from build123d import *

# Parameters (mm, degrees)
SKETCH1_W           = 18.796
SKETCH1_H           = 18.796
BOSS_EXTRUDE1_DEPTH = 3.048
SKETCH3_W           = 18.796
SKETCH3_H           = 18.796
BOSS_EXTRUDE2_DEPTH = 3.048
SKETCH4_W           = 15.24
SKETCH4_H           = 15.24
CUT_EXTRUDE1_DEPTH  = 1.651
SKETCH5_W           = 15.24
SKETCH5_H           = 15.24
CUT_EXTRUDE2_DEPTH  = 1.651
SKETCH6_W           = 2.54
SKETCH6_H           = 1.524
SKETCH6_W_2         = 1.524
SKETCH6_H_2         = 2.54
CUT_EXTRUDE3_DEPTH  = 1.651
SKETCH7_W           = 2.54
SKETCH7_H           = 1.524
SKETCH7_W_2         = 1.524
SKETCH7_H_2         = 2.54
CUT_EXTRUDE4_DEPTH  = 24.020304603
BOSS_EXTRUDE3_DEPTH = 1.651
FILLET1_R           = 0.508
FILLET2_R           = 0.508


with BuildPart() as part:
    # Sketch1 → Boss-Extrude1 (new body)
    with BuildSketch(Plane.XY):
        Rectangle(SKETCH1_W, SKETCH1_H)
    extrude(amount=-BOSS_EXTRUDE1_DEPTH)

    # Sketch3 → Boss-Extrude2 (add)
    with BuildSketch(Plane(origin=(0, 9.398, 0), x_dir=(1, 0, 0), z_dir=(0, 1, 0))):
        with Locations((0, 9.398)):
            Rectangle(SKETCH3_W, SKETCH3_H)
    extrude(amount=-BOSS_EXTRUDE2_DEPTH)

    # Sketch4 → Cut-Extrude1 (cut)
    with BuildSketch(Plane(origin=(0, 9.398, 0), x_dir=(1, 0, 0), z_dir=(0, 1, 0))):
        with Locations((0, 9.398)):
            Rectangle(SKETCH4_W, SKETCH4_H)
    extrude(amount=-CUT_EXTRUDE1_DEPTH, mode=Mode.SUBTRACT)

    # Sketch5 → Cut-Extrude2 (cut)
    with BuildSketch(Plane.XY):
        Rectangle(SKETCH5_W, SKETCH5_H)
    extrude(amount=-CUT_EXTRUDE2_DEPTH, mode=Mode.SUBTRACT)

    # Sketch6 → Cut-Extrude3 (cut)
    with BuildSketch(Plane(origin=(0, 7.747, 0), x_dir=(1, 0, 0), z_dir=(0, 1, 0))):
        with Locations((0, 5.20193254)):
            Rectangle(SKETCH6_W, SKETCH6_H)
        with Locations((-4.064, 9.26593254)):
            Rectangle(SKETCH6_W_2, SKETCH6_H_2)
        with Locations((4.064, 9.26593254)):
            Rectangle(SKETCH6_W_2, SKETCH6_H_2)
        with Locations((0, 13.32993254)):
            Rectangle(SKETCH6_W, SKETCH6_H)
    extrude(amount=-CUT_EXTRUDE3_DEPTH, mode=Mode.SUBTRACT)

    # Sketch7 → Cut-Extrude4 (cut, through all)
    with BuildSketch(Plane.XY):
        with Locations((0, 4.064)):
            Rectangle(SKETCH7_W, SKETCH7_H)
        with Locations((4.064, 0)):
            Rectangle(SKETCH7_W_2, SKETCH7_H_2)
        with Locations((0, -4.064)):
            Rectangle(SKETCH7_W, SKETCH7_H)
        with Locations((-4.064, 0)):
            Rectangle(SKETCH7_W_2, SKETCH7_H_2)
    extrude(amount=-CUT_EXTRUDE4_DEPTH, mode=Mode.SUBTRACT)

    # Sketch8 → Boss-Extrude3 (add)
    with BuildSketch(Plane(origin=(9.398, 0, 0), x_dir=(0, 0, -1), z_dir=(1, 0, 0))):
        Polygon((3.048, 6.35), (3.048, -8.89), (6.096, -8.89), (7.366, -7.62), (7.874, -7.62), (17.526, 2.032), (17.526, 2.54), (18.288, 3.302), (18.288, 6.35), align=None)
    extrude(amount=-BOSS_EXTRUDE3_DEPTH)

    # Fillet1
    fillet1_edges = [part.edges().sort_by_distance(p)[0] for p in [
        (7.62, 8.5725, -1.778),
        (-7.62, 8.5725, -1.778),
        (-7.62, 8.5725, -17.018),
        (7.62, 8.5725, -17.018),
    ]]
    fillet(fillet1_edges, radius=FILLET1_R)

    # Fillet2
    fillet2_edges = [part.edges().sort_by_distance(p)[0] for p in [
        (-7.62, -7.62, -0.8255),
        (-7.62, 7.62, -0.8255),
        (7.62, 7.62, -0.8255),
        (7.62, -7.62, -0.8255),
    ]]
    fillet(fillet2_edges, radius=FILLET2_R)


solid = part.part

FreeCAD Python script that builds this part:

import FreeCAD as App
import Part
import Sketcher
Q = App.Units.Quantity


def edges_at(feature, points):
    """Names of the edges that pass closest to the given points."""
    edges = feature.Shape.Edges
    near = lambda p: min(range(len(edges)), key=lambda i: edges[i].distToShape(Part.Vertex(*p))[0])
    return sorted({f"Edge{near(p) + 1}" for p in points})


def add_polygon(sketch, points):
    """Adds a closed chain of lines whose ends are joined by coincident constraints."""
    first, n = sketch.GeometryCount, len(points)
    for a, b in zip(points, points[1:] + points[:1]):
        sketch.addGeometry(Part.LineSegment(App.Vector(*a, 0), App.Vector(*b, 0)), False)
    for i in range(n):
        sketch.addConstraint(Sketcher.Constraint("Coincident", first + i, 2, first + (i + 1) % n, 1))

doc = App.newDocument("Part")
body = doc.addObject("PartDesign::Body", "Body")

# Sketch on XY plane
sketch1 = body.newObject("Sketcher::SketchObject", "Sketch")
sketch1.AttachmentSupport = (doc.getObject("XY_Plane"), [""])
sketch1.MapMode = "FlatFace"
add_polygon(sketch1, [(-9, 9), (-9, -9), (9, -9), (9, 9)])  # lines 0-3
sketch1.addConstraint([
    Sketcher.Constraint("Vertical", 0),
    Sketcher.Constraint("Horizontal", 1),
    Sketcher.Constraint("Vertical", 2),
    Sketcher.Constraint("Horizontal", 3),
    Sketcher.Constraint("Symmetric", 0, 2, 2, 2, -1, 1),
    Sketcher.Constraint("Equal", 3, 0),
    Sketcher.Constraint("DistanceX", 1, 1, 1, 2, Q("0.74 in")),
])
pad1 = body.newObject("PartDesign::Pad", "Pad")
pad1.Profile = sketch1
pad1.Length = Q("0.12 in")
pad1.Reversed = True

# Sketch on XZ plane
sketch2 = body.newObject("Sketcher::SketchObject", "Sketch001")
sketch2.AttachmentSupport = (doc.getObject("XZ_Plane"), [""])
sketch2.MapMode = "FlatFace"
sketch2.AttachmentOffset = App.Placement(App.Vector(0, 0, -0.37 * 25.4), App.Rotation())
add_polygon(sketch2, [(-9, -19), (-9, 0), (9, 0), (9, -19)])  # lines 0-3
sketch2.addConstraint([
    Sketcher.Constraint("Vertical", 0),
    Sketcher.Constraint("Horizontal", 1),
    Sketcher.Constraint("Vertical", 2),
    Sketcher.Constraint("Horizontal", 3),
    Sketcher.Constraint("Symmetric", 0, 2, 1, 2, -1, 1),
    Sketcher.Constraint("Equal", 3, 0),
    Sketcher.Constraint("DistanceX", 1, 1, 1, 2, Q("0.74 in")),
])
pad2 = body.newObject("PartDesign::Pad", "Pad001")
pad2.Profile = sketch2
pad2.Length = Q("0.12 in")

# Sketch on XZ plane
sketch3 = body.newObject("Sketcher::SketchObject", "Sketch002")
sketch3.AttachmentSupport = (doc.getObject("XZ_Plane"), [""])
sketch3.MapMode = "FlatFace"
sketch3.AttachmentOffset = App.Placement(App.Vector(0, 0, -0.37 * 25.4), App.Rotation())
add_polygon(sketch3, [(-8, -17), (-8, -2), (8, -2), (8, -17)])  # lines 0-3
sketch3.addConstraint([
    Sketcher.Constraint("Vertical", 0),
    Sketcher.Constraint("Horizontal", 1),
    Sketcher.Constraint("Vertical", 2),
    Sketcher.Constraint("Horizontal", 3),
    Sketcher.Constraint("Equal", 3, 0),
    Sketcher.Constraint("DistanceX", 1, 1, 1, 2, Q("0.6 in")),
    Sketcher.Constraint("DistanceX", 0, 2, -1, 1, Q("0.3 in")),
    Sketcher.Constraint("DistanceY", 0, 2, -1, 1, Q("0.07 in")),
])
pocket1 = body.newObject("PartDesign::Pocket", "Pocket")
pocket1.Profile = sketch3
pocket1.Length = Q("0.065 in")
pocket1.Reversed = True

# Sketch on XY plane
sketch4 = body.newObject("Sketcher::SketchObject", "Sketch003")
sketch4.AttachmentSupport = (doc.getObject("XY_Plane"), [""])
sketch4.MapMode = "FlatFace"
add_polygon(sketch4, [(-8, 8), (-8, -8), (8, -8), (8, 8)])  # lines 0-3
sketch4.addConstraint([
    Sketcher.Constraint("Vertical", 0),
    Sketcher.Constraint("Horizontal", 1),
    Sketcher.Constraint("Vertical", 2),
    Sketcher.Constraint("Horizontal", 3),
    Sketcher.Constraint("Symmetric", 0, 2, 2, 2, -1, 1),
    Sketcher.Constraint("Equal", 3, 0),
    Sketcher.Constraint("DistanceX", 1, 1, 1, 2, Q("0.6 in")),
])
pocket2 = body.newObject("PartDesign::Pocket", "Pocket001")
pocket2.Profile = sketch4
pocket2.Length = Q("0.065 in")

# Sketch on XZ plane
sketch5 = body.newObject("Sketcher::SketchObject", "Sketch004")
sketch5.AttachmentSupport = (doc.getObject("XZ_Plane"), [""])
sketch5.MapMode = "FlatFace"
sketch5.AttachmentOffset = App.Placement(App.Vector(0, 0, -0.305 * 25.4), App.Rotation())
add_polygon(sketch5, [(-1.3, -6), (-1.3, -4.4), (1.3, -4.4), (1.3, -6)])  # lines 0-3
add_polygon(sketch5, [(-4.8, -10.5), (-4.8, -8), (-3.3, -8), (-3.3, -10.5)])  # lines 4-7
add_polygon(sketch5, [(3.3, -10.5), (3.3, -8), (4.8, -8), (4.8, -10.5)])  # lines 8-11
add_polygon(sketch5, [(-1.3, -14.1), (-1.3, -12.6), (1.3, -12.6), (1.3, -14.1)])  # lines 12-15
sketch5.addConstraint([
    Sketcher.Constraint("Vertical", 0),
    Sketcher.Constraint("Horizontal", 1),
    Sketcher.Constraint("Vertical", 2),
    Sketcher.Constraint("Horizontal", 3),
    Sketcher.Constraint("Vertical", 4),
    Sketcher.Constraint("Horizontal", 5),
    Sketcher.Constraint("Vertical", 6),
    Sketcher.Constraint("Horizontal", 7),
    Sketcher.Constraint("Vertical", 8),
    Sketcher.Constraint("Horizontal", 9),
    Sketcher.Constraint("Vertical", 10),
    Sketcher.Constraint("Horizontal", 11),
    Sketcher.Constraint("Vertical", 12),
    Sketcher.Constraint("Horizontal", 13),
    Sketcher.Constraint("Vertical", 14),
    Sketcher.Constraint("Horizontal", 15),
    Sketcher.Constraint("Symmetric", 5, 2, 8, 2, -2),
    Sketcher.Constraint("Symmetric", 7, 2, 10, 2, -2),
    Sketcher.Constraint("Vertical", 3, 2, 12, 2),
    Sketcher.Constraint("Vertical", 2, 2, 13, 2),
    Sketcher.Constraint("Equal", 11, 0),
    Sketcher.Constraint("Equal", 15, 4),
    Sketcher.Constraint("Equal", 2, 12),
    Sketcher.Constraint("DistanceX", 1, 1, 1, 2, Q("0.1 in")),
    Sketcher.Constraint("DistanceX", 5, 1, 5, 2, Q("0.06 in")),
    Sketcher.Constraint("DistanceX", 0, 2, -1, 1, Q("0.05 in")),
    Sketcher.Constraint("DistanceX", 4, 2, -1, 1, Q("0.19 in")),
    Sketcher.Constraint("DistanceY", 4, 2, 3, 2, Q("0.08 in")),
    Sketcher.Constraint("DistanceY", 12, 2, 6, 2, Q("0.08 in")),
    Sketcher.Constraint("DistanceY", 0, 2, -1, 1, Q("4.439933 mm")),
])
pocket3 = body.newObject("PartDesign::Pocket", "Pocket002")
pocket3.Profile = sketch5
pocket3.Length = Q("0.065 in")
pocket3.Reversed = True

# Sketch on XY plane
sketch6 = body.newObject("Sketcher::SketchObject", "Sketch005")
sketch6.AttachmentSupport = (doc.getObject("XY_Plane"), [""])
sketch6.MapMode = "FlatFace"
add_polygon(sketch6, [(-1.3, 4.8), (-1.3, 3.3), (1.3, 3.3), (1.3, 4.8)])  # lines 0-3
add_polygon(sketch6, [(3.3, 1.3), (3.3, -1.3), (4.8, -1.3), (4.8, 1.3)])  # lines 4-7
add_polygon(sketch6, [(-1.3, -3.3), (-1.3, -4.8), (1.3, -4.8), (1.3, -3.3)])  # lines 8-11
add_polygon(sketch6, [(-4.8, 1.3), (-4.8, -1.3), (-3.3, -1.3), (-3.3, 1.3)])  # lines 12-15
sketch6.addConstraint([
    Sketcher.Constraint("Vertical", 0),
    Sketcher.Constraint("Horizontal", 1),
    Sketcher.Constraint("Vertical", 2),
    Sketcher.Constraint("Horizontal", 3),
    Sketcher.Constraint("Vertical", 4),
    Sketcher.Constraint("Horizontal", 5),
    Sketcher.Constraint("Vertical", 6),
    Sketcher.Constraint("Horizontal", 7),
    Sketcher.Constraint("Vertical", 8),
    Sketcher.Constraint("Horizontal", 9),
    Sketcher.Constraint("Vertical", 10),
    Sketcher.Constraint("Horizontal", 11),
    Sketcher.Constraint("Vertical", 12),
    Sketcher.Constraint("Horizontal", 13),
    Sketcher.Constraint("Vertical", 14),
    Sketcher.Constraint("Horizontal", 15),
    Sketcher.Constraint("Symmetric", 2, 2, 8, 2, -1, 1),
    Sketcher.Constraint("Symmetric", 0, 2, 10, 2, -1, 1),
    Sketcher.Constraint("Symmetric", 6, 2, 12, 2, -1, 1),
    Sketcher.Constraint("Symmetric", 4, 2, 14, 2, -1, 1),
    Sketcher.Constraint("Horizontal", 5, 2, 12, 2),
    Sketcher.Constraint("Vertical", 3, 2, 8, 2),
    Sketcher.Constraint("Equal", 15, 0),
    Sketcher.Constraint("Equal", 11, 4),
    Sketcher.Constraint("DistanceX", 1, 1, 1, 2, Q("0.1 in")),
    Sketcher.Constraint("DistanceX", 5, 1, 5, 2, Q("0.06 in")),
    Sketcher.Constraint("DistanceY", -1, 1, 0, 2, Q("0.13 in")),
    Sketcher.Constraint("DistanceX", -1, 1, 4, 2, Q("0.13 in")),
])
pocket4 = body.newObject("PartDesign::Pocket", "Pocket003")
pocket4.Profile = sketch6
pocket4.Type = "ThroughAll"

# Sketch on YZ plane
sketch7 = body.newObject("Sketcher::SketchObject", "Sketch006")
sketch7.AttachmentSupport = (doc.getObject("YZ_Plane"), [""])
sketch7.MapMode = "FlatFace"
sketch7.AttachmentOffset = App.Placement(App.Vector(0, 0, 0.37 * 25.4), App.Rotation())
add_polygon(sketch7, [(6.3, -3), (-8.9, -3), (-8.9, -6.1), (-7.6, -7.4), (-7.6, -7.9), (2, -17.5), (2.5, -17.5), (3.3, -18.3), (6.3, -18.3)])  # lines 0-8
sketch7.addConstraint([
    Sketcher.Constraint("Horizontal", 0),
    Sketcher.Constraint("Vertical", 1),
    Sketcher.Constraint("Vertical", 3),
    Sketcher.Constraint("Horizontal", 5),
    Sketcher.Constraint("Horizontal", 7),
    Sketcher.Constraint("Vertical", 8),
    Sketcher.Constraint("Parallel", 2, 4),
    Sketcher.Constraint("Parallel", 4, 6),
    Sketcher.Constraint("Equal", 7, 1),
    Sketcher.Constraint("Equal", 5, 3),
    Sketcher.Constraint("Equal", 0, 8),
    Sketcher.Constraint("DistanceX", 0, 2, 0, 1, Q("0.6 in")),
    Sketcher.Constraint("DistanceX", 5, 1, 5, 2, Q("0.02 in")),
    Sketcher.Constraint("DistanceX", 7, 1, 7, 2, Q("0.12 in")),
    Sketcher.Constraint("DistanceX", 2, 2, -1, 1, Q("0.3 in")),
    Sketcher.Constraint("DistanceX", -1, 1, 5, 2, Q("0.1 in")),
    Sketcher.Constraint("DistanceX", 0, 2, -1, 1, Q("0.35 in")),
    Sketcher.Constraint("DistanceY", 0, 2, -1, 1, Q("0.12 in")),
])
pad3 = body.newObject("PartDesign::Pad", "Pad002")
pad3.Profile = sketch7
pad3.Length = Q("0.065 in")
pad3.Reversed = True
doc.recompute()

fillet = body.newObject("PartDesign::Fillet", "Fillet")
fillet.Base = (pad3, edges_at(pad3, [
    (7.62, 8.572, -1.778),
    (-7.62, 8.572, -1.778),
    (-7.62, 8.572, -17.018),
    (7.62, 8.572, -17.018),
]))
fillet.Radius = Q("0.02 in")
doc.recompute()

fillet2 = body.newObject("PartDesign::Fillet", "Fillet001")
fillet2.Base = (fillet, edges_at(fillet, [
    (-7.62, -7.62, -0.826),
    (-7.62, 7.62, -0.826),
    (7.62, 7.62, -0.826),
    (7.62, -7.62, -0.826),
]))
fillet2.Radius = Q("0.02 in")

doc.recompute()
